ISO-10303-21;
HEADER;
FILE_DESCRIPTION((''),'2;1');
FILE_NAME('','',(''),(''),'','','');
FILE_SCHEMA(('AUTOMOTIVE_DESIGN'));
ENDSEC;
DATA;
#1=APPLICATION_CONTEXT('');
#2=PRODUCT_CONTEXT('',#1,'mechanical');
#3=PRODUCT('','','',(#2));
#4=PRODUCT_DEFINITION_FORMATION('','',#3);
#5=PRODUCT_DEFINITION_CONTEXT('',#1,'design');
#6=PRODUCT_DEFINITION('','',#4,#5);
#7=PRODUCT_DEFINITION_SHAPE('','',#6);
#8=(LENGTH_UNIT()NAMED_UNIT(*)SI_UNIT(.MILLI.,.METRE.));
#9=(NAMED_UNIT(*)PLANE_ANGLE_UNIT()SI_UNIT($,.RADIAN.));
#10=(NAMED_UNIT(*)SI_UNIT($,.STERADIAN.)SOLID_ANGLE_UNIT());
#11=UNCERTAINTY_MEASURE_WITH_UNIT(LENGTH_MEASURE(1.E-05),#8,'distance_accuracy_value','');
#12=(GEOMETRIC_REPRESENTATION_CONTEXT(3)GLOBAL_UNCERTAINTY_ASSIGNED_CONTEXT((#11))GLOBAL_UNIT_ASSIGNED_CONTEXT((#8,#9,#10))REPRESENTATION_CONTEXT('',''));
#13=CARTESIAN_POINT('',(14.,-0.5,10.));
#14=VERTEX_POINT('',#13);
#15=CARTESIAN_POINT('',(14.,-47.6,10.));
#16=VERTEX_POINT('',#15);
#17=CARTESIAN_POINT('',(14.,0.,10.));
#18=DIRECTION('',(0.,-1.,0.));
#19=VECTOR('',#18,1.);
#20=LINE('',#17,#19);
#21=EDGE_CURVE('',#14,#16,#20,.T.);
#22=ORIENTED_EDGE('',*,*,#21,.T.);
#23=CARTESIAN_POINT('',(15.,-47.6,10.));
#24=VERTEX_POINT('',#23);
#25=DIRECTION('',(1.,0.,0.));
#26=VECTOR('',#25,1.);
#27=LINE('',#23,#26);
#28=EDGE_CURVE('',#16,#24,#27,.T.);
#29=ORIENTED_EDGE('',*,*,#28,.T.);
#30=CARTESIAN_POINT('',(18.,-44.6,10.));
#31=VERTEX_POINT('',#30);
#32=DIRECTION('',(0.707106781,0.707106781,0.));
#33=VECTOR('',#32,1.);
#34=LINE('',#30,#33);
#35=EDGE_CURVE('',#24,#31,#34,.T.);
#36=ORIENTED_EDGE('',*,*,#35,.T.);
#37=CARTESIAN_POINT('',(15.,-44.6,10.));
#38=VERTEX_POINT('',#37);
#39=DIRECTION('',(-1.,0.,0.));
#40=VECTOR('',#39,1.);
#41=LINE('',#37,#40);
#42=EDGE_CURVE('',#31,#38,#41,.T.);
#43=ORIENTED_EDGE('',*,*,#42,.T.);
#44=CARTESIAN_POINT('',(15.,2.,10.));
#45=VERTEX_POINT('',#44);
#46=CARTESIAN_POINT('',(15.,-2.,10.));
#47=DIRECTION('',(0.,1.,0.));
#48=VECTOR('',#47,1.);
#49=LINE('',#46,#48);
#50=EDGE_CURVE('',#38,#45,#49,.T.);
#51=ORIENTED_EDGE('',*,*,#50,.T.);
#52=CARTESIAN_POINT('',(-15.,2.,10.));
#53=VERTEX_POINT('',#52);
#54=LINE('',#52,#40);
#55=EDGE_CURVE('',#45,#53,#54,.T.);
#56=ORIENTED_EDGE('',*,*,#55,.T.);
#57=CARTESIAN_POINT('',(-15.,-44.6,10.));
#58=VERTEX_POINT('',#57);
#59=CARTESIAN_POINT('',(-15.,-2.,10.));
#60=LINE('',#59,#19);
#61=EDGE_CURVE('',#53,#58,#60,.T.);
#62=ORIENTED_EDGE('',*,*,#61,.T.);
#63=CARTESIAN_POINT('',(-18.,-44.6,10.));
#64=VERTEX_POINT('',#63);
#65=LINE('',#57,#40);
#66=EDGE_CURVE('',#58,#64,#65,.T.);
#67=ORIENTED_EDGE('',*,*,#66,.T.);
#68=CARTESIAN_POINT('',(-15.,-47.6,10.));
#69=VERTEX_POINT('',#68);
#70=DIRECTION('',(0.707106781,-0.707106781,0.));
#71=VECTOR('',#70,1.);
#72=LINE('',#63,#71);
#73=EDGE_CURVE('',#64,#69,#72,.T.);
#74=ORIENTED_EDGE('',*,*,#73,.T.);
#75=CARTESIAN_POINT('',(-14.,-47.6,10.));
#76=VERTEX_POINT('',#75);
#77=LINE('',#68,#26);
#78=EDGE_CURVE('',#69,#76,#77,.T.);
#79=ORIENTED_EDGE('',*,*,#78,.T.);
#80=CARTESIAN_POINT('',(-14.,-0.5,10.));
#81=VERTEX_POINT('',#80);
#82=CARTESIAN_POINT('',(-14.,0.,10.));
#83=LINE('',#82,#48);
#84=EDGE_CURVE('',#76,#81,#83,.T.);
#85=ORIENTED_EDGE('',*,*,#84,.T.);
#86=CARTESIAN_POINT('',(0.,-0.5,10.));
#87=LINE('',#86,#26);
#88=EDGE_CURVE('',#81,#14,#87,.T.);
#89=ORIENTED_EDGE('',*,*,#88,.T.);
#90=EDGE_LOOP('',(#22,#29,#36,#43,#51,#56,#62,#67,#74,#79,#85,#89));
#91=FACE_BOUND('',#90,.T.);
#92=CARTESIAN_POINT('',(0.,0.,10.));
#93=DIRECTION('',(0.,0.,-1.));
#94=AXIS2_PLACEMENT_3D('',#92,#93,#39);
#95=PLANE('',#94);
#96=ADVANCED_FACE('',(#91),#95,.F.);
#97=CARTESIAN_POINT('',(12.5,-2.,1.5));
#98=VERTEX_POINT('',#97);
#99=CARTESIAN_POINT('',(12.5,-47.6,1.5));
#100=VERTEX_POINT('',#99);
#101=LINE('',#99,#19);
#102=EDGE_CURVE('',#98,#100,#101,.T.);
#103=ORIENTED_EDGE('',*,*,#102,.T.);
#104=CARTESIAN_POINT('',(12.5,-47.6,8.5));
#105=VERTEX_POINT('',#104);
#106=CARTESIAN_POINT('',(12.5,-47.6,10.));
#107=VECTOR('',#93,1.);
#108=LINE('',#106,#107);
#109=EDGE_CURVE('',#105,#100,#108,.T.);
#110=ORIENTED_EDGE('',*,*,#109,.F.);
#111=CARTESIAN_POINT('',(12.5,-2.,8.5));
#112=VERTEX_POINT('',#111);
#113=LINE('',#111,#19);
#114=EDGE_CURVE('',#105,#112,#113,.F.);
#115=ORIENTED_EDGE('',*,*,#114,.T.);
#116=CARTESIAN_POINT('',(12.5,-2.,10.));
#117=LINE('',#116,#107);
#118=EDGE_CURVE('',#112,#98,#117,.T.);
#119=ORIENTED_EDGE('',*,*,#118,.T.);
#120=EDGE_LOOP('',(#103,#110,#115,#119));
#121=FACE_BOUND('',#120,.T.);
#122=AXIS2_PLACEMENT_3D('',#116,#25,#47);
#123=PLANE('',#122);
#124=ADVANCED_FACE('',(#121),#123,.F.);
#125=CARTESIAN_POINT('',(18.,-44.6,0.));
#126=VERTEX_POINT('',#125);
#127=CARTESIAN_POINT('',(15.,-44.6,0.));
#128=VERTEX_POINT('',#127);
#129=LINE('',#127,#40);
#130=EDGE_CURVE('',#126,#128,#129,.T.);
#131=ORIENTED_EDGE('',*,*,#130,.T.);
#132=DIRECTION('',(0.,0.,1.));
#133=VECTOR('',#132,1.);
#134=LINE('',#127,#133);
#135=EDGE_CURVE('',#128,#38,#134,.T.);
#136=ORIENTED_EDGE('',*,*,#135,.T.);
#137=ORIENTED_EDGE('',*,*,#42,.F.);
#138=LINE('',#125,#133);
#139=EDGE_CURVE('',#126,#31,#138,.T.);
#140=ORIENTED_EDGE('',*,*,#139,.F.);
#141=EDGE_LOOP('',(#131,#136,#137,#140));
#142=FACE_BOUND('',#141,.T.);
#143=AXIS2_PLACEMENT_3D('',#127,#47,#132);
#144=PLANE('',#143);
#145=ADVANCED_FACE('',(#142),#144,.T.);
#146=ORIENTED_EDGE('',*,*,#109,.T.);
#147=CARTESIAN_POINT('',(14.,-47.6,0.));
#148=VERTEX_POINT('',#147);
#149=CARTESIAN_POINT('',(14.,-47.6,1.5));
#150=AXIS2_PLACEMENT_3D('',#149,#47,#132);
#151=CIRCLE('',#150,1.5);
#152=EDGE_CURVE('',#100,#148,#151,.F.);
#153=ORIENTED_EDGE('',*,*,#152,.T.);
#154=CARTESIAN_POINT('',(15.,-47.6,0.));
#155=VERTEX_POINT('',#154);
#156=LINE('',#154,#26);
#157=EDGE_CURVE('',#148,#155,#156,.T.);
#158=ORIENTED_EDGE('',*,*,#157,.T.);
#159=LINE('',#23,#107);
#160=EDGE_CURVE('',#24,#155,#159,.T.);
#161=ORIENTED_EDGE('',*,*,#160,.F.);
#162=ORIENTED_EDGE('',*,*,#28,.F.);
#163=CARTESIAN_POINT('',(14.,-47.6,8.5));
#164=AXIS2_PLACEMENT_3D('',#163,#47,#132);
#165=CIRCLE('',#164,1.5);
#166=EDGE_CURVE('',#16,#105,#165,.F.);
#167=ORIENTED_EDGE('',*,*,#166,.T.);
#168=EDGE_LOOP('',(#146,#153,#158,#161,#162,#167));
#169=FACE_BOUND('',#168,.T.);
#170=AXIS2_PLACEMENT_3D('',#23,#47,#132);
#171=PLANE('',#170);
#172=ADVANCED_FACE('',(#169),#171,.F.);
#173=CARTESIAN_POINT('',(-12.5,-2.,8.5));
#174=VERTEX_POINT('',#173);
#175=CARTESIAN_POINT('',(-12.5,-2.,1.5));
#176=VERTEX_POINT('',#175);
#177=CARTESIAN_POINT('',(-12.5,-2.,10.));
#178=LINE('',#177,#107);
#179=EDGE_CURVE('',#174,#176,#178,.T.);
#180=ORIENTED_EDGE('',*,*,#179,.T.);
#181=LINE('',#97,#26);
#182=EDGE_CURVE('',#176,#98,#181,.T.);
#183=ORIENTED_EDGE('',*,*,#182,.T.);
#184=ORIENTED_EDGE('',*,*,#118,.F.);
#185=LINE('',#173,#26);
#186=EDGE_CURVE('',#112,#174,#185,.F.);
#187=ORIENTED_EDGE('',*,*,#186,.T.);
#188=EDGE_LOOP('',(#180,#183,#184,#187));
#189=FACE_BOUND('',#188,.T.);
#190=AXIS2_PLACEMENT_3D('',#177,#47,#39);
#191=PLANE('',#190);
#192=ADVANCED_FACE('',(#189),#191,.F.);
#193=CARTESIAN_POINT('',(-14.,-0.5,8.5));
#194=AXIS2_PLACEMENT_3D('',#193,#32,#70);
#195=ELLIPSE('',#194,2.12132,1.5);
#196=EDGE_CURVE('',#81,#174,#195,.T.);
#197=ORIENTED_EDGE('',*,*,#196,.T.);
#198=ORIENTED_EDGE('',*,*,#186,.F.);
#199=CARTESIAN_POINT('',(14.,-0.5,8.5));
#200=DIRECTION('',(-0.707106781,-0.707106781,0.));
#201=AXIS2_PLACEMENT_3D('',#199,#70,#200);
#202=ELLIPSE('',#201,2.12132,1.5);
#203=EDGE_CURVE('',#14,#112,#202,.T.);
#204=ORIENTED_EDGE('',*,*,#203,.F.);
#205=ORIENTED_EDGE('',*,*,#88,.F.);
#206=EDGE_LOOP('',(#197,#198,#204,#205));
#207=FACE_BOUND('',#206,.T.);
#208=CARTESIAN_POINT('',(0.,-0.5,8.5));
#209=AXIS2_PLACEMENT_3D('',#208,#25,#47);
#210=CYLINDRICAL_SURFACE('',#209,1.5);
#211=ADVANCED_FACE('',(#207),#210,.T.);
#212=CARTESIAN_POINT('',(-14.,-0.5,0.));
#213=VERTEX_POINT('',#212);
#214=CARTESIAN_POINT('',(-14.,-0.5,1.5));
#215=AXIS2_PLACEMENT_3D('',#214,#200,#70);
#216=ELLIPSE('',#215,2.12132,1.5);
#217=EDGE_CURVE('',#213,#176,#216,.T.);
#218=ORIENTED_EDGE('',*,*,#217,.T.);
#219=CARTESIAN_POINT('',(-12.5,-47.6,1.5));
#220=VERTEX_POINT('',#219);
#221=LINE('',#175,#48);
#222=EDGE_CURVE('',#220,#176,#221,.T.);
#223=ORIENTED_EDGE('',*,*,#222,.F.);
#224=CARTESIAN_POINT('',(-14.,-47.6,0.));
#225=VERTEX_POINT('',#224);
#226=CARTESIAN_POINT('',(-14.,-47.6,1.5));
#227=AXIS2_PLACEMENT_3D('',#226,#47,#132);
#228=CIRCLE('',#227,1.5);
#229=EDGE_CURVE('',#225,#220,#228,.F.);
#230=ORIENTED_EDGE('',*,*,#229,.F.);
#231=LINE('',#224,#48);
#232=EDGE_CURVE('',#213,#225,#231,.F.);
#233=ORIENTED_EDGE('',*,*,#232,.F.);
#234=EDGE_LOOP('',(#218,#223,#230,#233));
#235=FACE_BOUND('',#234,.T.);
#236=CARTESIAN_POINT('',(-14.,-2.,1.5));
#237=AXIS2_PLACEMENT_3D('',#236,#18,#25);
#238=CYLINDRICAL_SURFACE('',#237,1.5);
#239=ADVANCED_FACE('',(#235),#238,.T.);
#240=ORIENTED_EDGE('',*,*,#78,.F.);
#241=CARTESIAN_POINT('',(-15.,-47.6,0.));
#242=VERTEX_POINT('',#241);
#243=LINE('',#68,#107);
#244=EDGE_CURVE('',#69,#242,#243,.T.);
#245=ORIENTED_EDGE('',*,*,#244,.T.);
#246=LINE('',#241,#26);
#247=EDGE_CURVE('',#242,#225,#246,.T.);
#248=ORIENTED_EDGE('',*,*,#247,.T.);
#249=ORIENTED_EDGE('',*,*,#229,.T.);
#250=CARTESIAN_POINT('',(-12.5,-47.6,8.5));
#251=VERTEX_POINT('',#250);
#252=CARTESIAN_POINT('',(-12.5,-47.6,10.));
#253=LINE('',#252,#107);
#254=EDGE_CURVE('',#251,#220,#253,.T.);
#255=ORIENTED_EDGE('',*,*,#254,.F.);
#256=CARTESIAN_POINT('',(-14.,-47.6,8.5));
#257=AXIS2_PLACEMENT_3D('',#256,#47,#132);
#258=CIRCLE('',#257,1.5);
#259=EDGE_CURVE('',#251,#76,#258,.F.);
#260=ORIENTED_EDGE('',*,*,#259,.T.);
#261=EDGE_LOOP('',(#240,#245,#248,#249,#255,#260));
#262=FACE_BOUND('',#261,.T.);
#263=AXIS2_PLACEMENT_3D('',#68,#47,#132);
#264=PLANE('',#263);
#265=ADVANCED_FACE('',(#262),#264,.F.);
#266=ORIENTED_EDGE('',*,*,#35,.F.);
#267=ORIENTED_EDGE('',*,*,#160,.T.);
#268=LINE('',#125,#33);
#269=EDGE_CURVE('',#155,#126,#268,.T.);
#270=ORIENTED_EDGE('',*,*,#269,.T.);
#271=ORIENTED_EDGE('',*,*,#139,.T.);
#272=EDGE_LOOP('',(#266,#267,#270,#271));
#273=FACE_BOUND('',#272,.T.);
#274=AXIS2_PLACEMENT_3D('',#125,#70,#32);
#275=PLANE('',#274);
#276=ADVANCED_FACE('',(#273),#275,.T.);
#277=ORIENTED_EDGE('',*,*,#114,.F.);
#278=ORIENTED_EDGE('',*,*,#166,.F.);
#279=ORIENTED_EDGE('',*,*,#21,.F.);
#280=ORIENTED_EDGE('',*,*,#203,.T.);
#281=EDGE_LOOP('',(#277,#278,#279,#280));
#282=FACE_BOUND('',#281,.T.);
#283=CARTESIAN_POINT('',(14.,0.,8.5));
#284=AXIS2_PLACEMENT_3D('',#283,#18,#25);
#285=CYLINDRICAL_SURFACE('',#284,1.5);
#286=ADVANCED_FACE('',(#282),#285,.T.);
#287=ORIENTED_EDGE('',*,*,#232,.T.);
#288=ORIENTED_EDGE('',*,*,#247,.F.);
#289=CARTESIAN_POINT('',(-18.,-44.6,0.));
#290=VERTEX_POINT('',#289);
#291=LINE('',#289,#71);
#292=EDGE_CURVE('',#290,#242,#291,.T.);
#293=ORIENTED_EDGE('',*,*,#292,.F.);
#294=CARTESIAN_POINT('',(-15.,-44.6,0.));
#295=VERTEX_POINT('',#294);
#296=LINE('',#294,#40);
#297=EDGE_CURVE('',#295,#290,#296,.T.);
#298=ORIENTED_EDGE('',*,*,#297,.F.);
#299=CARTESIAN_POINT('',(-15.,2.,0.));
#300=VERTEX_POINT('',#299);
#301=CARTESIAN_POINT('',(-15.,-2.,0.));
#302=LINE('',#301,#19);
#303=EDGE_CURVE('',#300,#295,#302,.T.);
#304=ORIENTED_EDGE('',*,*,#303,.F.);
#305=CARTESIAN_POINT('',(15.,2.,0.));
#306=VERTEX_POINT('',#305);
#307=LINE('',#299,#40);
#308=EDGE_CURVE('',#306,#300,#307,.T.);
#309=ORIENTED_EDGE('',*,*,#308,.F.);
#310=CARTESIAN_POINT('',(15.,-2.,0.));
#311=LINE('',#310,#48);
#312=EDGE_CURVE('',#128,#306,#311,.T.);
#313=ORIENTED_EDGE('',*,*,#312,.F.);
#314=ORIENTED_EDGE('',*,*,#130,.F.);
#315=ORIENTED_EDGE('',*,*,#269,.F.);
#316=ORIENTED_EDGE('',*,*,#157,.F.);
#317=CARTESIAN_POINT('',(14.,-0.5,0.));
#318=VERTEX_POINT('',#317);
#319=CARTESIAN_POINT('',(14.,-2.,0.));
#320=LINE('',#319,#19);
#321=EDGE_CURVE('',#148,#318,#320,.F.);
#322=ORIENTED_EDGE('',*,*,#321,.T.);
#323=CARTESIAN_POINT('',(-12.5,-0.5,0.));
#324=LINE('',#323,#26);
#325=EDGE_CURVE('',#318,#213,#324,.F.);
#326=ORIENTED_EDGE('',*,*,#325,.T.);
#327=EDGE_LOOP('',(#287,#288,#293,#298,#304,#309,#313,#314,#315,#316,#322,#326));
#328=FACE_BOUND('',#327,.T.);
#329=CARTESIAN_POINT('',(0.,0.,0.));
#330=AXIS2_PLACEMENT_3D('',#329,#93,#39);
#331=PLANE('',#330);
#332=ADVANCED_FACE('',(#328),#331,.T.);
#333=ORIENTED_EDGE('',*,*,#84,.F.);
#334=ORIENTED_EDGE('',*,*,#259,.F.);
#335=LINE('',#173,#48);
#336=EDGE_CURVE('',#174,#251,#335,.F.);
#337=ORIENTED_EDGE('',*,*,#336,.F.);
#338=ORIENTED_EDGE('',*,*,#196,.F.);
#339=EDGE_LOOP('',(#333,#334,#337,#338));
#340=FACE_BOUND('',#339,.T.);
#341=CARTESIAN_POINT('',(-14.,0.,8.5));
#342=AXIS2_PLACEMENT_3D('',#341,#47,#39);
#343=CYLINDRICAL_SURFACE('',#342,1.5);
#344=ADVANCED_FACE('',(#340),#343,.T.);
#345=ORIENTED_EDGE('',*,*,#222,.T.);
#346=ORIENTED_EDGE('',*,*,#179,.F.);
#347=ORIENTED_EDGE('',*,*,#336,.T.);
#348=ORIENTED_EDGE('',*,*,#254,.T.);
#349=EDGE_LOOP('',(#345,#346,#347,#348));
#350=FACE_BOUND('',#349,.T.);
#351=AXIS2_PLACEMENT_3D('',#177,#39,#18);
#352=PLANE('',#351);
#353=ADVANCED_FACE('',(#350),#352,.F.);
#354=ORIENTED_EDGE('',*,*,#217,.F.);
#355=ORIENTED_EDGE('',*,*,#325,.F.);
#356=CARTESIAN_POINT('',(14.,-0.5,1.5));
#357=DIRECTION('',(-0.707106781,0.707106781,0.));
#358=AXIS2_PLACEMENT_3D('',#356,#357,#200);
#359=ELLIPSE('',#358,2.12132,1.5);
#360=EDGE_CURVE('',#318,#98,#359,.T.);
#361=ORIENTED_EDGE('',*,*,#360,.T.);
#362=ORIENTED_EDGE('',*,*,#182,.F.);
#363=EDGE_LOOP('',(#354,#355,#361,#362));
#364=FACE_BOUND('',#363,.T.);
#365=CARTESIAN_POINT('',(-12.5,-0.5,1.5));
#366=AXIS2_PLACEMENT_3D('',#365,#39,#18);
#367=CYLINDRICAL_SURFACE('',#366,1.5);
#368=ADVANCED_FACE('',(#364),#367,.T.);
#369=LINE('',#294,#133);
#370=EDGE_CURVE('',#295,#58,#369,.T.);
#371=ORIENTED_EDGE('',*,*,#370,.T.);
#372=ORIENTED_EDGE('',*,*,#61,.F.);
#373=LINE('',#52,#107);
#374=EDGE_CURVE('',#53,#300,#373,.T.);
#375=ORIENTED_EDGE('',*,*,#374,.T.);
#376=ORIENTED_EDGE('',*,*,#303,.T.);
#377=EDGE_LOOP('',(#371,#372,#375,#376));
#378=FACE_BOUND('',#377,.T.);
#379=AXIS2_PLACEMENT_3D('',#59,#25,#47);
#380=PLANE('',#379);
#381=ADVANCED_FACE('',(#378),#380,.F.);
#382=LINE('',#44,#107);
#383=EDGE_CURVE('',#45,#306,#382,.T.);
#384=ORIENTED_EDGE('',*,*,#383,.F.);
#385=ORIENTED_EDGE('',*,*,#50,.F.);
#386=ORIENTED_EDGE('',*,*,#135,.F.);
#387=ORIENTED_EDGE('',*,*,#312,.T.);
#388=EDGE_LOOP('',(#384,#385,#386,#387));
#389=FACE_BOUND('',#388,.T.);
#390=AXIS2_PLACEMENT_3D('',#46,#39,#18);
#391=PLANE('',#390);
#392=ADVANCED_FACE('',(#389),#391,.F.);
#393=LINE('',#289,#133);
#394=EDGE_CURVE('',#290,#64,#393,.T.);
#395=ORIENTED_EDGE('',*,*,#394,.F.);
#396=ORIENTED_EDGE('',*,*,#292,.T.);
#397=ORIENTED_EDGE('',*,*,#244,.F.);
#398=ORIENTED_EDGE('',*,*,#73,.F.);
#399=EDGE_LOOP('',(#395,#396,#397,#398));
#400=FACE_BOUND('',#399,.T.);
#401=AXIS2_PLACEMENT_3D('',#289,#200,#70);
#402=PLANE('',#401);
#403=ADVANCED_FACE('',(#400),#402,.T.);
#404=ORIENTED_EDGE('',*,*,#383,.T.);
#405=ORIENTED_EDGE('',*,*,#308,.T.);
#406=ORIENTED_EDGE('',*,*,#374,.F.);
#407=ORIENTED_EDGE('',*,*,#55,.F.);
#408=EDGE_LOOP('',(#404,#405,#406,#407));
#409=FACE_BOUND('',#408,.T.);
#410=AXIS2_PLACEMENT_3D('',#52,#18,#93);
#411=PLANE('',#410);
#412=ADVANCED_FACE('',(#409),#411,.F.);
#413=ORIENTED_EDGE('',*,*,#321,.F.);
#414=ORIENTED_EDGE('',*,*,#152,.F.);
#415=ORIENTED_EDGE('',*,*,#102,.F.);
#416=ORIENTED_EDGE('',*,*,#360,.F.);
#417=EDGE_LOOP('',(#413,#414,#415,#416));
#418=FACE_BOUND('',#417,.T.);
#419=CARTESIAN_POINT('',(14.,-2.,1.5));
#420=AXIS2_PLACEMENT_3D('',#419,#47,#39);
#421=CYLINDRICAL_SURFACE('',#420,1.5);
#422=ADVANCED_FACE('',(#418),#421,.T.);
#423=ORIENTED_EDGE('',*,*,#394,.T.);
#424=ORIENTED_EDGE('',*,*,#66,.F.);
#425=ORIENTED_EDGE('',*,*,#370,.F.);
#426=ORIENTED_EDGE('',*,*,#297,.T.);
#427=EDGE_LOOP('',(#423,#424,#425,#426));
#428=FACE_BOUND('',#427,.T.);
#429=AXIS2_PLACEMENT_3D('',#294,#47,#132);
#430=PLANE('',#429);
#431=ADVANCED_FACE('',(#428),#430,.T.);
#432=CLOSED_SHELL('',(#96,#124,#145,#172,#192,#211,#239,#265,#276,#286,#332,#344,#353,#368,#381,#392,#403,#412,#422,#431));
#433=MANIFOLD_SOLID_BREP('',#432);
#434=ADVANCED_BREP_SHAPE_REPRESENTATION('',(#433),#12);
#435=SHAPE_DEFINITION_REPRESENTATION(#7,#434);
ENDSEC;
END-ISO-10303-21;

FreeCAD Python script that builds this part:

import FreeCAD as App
import Part
import Sketcher

V = App.Vector
Q = App.Units.Quantity


def edges_at(feature, points):
    """Names of the edges that pass closest to the given points."""
    edges = feature.Shape.Edges
    near = lambda p: min(range(len(edges)), key=lambda i: edges[i].distToShape(Part.Vertex(*p))[0])
    return sorted({f"Edge{near(p) + 1}" for p in points})


def add_polygon(sketch, points):
    """Adds a closed chain of lines whose ends are joined by coincident constraints."""
    first, n = sketch.GeometryCount, len(points)
    for a, b in zip(points, points[1:] + points[:1]):
        sketch.addGeometry(Part.LineSegment(App.Vector(*a, 0), App.Vector(*b, 0)), False)
    for i in range(n):
        sketch.addConstraint(Sketcher.Constraint("Coincident", first + i, 2, first + (i + 1) % n, 1))

doc = App.newDocument("Part")
body = doc.addObject("PartDesign::Body", "Body")

sketch1 = doc.addObject("Sketcher::SketchObject", "Sketch")
body.addObject(sketch1)
sketch1.AttachmentSupport = (doc.XY_Plane, [""])
sketch1.MapMode = "FlatFace"
add_polygon(sketch1, [(-12.5, -2), (12.5, -2), (12.5, -47.6), (15, -47.6), (15, 2), (-15, 2), (-15, -47.6), (-12.5, -47.6)])
sketch1.addConstraint([
    Sketcher.Constraint("Horizontal", 0),
    Sketcher.Constraint("Vertical", 1),
    Sketcher.Constraint("Horizontal", 2),
    Sketcher.Constraint("Vertical", 3),
    Sketcher.Constraint("Horizontal", 4),
    Sketcher.Constraint("Vertical", 5),
    Sketcher.Constraint("Horizontal", 6),
    Sketcher.Constraint("Vertical", 7),
    Sketcher.Constraint("Symmetric", 2, 2, 5, 2, -2),
    Sketcher.Constraint("Equal", 2, 6),
    Sketcher.Constraint("DistanceX", 0, 1, 0, 2, Q("25 mm")),
    Sketcher.Constraint("DistanceX", 4, 2, 4, 1, Q("30 mm")),
    Sketcher.Constraint("DistanceY", 1, 2, 1, 1, Q("45.6 mm")),
    Sketcher.Constraint("DistanceY", 3, 1, 3, 2, Q("49.6 mm")),
    Sketcher.Constraint("DistanceY", 0, 2, -1, 1, Q("2 mm")),
])
pad1 = doc.addObject("PartDesign::Pad", "Pad")
body.addObject(pad1)
pad1.Profile = sketch1
pad1.Length = 10

sketch2 = doc.addObject("Sketcher::SketchObject", "Sketch001")
body.addObject(sketch2)
sketch2.AttachmentSupport = (doc.XY_Plane, [""])
sketch2.MapMode = "FlatFace"
sketch2.AttachmentOffset = App.Placement(V(0, 0, 10), App.Rotation())
add_polygon(sketch2, [(15, -47.6), (18, -44.6), (15, -44.6)])
add_polygon(sketch2, [(-15, -47.6), (-15, -44.6), (-18, -44.6)])
sketch2.addConstraint([
    Sketcher.Constraint("Horizontal", 1),
    Sketcher.Constraint("Vertical", 2),
    Sketcher.Constraint("Vertical", 3),
    Sketcher.Constraint("Horizontal", 4),
    Sketcher.Constraint("Symmetric", 1, 2, 3, 2, -2),
    Sketcher.Constraint("Perpendicular", 0, 5),
    Sketcher.Constraint("Horizontal", 2, 2, 5, 2),
    Sketcher.Constraint("Equal", 1, 4),
    Sketcher.Constraint("DistanceX", 1, 2, 1, 1, Q("3 mm")),
    Sketcher.Constraint("DistanceX", -1, 1, 0, 2, Q("18 mm")),
    Sketcher.Constraint("DistanceY", 0, 2, -1, 1, Q("44.6 mm")),
])
pad2 = doc.addObject("PartDesign::Pad", "Pad001")
body.addObject(pad2)
pad2.Profile = sketch2
pad2.Length = 10
pad2.Reversed = True
doc.recompute()

fillet = doc.addObject("PartDesign::Fillet", "Fillet")
body.addObject(fillet)
fillet.Base = (pad2, edges_at(pad2, [
    (12.5, -24.8, 0),
    (0, -2, 0),
    (-12.5, -24.8, 0),
    (-12.5, -24.8, 10),
    (0, -2, 10),
    (12.5, -24.8, 10),
]))
fillet.Radius = 1.5

doc.recompute()
